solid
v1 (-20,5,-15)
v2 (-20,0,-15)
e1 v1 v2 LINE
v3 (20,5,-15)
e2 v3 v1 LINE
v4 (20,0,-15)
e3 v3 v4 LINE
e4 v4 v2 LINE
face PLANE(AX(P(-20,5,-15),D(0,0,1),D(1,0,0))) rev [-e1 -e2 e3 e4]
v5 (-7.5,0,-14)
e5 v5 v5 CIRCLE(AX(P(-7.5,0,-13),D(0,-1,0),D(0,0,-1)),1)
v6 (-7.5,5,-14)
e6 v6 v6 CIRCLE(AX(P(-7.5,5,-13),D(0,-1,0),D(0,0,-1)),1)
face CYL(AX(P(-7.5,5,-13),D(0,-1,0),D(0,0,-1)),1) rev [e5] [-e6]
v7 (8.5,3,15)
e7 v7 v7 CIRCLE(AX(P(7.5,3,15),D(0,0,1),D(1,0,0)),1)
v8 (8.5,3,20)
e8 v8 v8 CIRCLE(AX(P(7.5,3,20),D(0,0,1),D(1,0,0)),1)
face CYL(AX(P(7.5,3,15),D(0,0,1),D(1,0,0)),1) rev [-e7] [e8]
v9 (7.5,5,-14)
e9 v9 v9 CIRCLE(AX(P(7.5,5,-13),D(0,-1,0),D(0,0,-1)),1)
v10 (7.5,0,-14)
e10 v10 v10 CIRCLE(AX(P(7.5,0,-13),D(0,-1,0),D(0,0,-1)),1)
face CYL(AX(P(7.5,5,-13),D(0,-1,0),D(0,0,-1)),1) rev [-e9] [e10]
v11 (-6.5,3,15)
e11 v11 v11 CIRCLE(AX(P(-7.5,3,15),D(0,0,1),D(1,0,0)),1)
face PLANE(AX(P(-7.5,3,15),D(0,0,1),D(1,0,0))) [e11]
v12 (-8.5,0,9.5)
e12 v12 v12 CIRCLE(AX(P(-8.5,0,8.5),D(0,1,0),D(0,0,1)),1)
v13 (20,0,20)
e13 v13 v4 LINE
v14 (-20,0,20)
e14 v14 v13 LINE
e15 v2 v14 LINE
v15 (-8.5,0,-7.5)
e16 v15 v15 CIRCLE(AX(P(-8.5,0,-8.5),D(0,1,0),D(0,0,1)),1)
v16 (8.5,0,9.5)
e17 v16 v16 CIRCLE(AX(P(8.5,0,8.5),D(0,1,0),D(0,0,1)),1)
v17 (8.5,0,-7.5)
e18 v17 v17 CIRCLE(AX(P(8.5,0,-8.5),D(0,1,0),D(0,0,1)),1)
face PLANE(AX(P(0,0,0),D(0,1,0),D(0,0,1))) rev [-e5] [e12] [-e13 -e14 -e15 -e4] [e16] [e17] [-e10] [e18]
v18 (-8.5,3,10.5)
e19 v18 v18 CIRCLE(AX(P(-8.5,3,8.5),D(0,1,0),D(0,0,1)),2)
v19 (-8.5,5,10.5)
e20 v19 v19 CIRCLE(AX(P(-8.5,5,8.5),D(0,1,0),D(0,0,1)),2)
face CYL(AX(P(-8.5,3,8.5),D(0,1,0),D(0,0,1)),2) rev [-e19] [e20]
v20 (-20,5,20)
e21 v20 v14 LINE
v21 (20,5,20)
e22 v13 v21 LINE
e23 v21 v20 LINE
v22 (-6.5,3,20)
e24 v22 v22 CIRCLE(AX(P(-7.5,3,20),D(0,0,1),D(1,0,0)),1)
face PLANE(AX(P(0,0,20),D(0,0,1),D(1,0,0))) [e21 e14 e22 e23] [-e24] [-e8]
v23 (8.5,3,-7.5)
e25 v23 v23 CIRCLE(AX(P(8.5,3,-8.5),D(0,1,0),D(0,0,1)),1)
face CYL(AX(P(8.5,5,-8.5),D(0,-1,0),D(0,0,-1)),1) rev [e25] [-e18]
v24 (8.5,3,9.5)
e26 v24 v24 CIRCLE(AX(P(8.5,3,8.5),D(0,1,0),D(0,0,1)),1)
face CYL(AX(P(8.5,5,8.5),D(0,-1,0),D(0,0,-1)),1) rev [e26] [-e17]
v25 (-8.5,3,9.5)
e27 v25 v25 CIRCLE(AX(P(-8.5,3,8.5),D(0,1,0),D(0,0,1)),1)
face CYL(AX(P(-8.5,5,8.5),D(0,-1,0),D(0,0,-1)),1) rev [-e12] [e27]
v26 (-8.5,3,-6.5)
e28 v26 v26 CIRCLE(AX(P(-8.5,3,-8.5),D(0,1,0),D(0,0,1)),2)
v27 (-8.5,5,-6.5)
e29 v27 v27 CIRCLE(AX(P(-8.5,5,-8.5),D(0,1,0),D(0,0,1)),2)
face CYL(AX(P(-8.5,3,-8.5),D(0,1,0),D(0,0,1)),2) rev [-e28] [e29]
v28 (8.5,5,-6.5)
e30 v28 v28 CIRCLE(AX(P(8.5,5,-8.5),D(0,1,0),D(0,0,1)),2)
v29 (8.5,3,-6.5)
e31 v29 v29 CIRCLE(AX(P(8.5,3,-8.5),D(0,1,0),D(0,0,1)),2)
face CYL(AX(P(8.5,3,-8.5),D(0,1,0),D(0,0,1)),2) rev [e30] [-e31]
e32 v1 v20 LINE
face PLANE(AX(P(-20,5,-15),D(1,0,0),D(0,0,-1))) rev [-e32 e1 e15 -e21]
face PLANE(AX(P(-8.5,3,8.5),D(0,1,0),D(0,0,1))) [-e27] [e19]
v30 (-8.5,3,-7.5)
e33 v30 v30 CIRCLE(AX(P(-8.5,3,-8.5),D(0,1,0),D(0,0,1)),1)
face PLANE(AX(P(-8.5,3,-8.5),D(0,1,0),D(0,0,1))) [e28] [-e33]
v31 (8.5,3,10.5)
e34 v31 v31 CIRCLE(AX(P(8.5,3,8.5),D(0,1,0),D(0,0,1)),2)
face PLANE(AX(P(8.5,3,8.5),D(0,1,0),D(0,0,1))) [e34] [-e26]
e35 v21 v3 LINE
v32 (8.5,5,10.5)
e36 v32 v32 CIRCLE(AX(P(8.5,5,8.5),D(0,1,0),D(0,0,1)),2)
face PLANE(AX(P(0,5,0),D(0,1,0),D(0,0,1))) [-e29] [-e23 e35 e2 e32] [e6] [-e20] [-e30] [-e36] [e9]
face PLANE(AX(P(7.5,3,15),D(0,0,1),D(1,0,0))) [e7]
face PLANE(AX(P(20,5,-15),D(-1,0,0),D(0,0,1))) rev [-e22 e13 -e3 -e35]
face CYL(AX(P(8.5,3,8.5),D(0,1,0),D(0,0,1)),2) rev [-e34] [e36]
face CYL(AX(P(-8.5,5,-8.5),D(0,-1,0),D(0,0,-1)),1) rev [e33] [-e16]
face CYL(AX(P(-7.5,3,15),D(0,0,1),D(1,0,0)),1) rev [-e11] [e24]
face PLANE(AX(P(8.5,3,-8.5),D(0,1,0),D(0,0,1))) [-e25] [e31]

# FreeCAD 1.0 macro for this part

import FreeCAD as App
import Part
import Sketcher
Q = App.Units.Quantity


def add_polygon(sketch, points):
    """Adds a closed chain of lines whose ends are joined by coincident constraints."""
    first, n = sketch.GeometryCount, len(points)
    for a, b in zip(points, points[1:] + points[:1]):
        sketch.addGeometry(Part.LineSegment(App.Vector(*a, 0), App.Vector(*b, 0)), False)
    for i in range(n):
        sketch.addConstraint(Sketcher.Constraint("Coincident", first + i, 2, first + (i + 1) % n, 1))

doc = App.newDocument("Part")
body = doc.addObject("PartDesign::Body", "Body")

# Sketch on XZ plane
sketch1 = body.newObject("Sketcher::SketchObject", "Sketch")
sketch1.AttachmentSupport = (doc.getObject("XZ_Plane"), [""])
sketch1.MapMode = "FlatFace"
add_polygon(sketch1, [(-20, -15), (-20, 15), (20, 15), (20, -15)])  # lines 0-3
sketch1.addGeometry(Part.Circle(App.Vector(-8.5, 8.5, 0), App.Vector(0, 0, 1), 1), False)  # 4
sketch1.addGeometry(Part.Circle(App.Vector(8.5, 8.5, 0), App.Vector(0, 0, 1), 1), False)  # 5
sketch1.addGeometry(Part.Circle(App.Vector(-8.5, -8.5, 0), App.Vector(0, 0, 1), 1), False)  # 6
sketch1.addGeometry(Part.Circle(App.Vector(8.5, -8.5, 0), App.Vector(0, 0, 1), 1), False)  # 7
sketch1.addConstraint(Sketcher.Constraint("Vertical", 0))
sketch1.addConstraint(Sketcher.Constraint("Horizontal", 1))
sketch1.addConstraint(Sketcher.Constraint("Vertical", 2))
sketch1.addConstraint(Sketcher.Constraint("Horizontal", 3))
sketch1.addConstraint(Sketcher.Constraint("Equal", 4, 5))
sketch1.addConstraint(Sketcher.Constraint("Equal", 5, 6))
sketch1.addConstraint(Sketcher.Constraint("Equal", 6, 7))
sketch1.addConstraint(Sketcher.Constraint("Symmetric", 5, 3, 6, 3, -1, 1))
sketch1.addConstraint(Sketcher.Constraint("Symmetric", 4, 3, 7, 3, -1, 1))
sketch1.addConstraint(Sketcher.Constraint("Symmetric", 0, 2, 2, 2, -1, 1))
sketch1.addConstraint(Sketcher.Constraint("Symmetric", 4, 3, 5, 3, -2))
sketch1.addConstraint(Sketcher.Constraint("Diameter", 4, Q("2 mm")))
sketch1.addConstraint(Sketcher.Constraint("DistanceX", 1, 1, 1, 2, Q("40 mm")))
sketch1.addConstraint(Sketcher.Constraint("DistanceY", 0, 1, 0, 2, Q("30 mm")))
sketch1.addConstraint(Sketcher.Constraint("DistanceX", 4, 3, 5, 3, Q("17 mm")))
sketch1.addConstraint(Sketcher.Constraint("DistanceY", 6, 3, 4, 3, Q("17 mm")))
pad1 = body.newObject("PartDesign::Pad", "Pad")
pad1.Profile = sketch1
pad1.Length = 5
pad1.Reversed = True

# Sketch on XZ plane
sketch2 = body.newObject("Sketcher::SketchObject", "Sketch001")
sketch2.AttachmentSupport = (doc.getObject("XZ_Plane"), [""])
sketch2.MapMode = "FlatFace"
sketch2.AttachmentOffset = App.Placement(App.Vector(0, 0, -5), App.Rotation())
sketch2.addGeometry(Part.Circle(App.Vector(-8.5, -8.5, 0), App.Vector(0, 0, 1), 2), False)
sketch2.addGeometry(Part.Circle(App.Vector(8.5, -8.5, 0), App.Vector(0, 0, 1), 2), False)
sketch2.addGeometry(Part.Circle(App.Vector(8.5, 8.5, 0), App.Vector(0, 0, 1), 2), False)
sketch2.addGeometry(Part.Circle(App.Vector(-8.5, 8.5, 0), App.Vector(0, 0, 1), 2), False)
sketch2.addConstraint(Sketcher.Constraint("Equal", 0, 1))
sketch2.addConstraint(Sketcher.Constraint("Equal", 1, 2))
sketch2.addConstraint(Sketcher.Constraint("Equal", 2, 3))
sketch2.addConstraint(Sketcher.Constraint("Symmetric", 0, 3, 2, 3, -1, 1))
sketch2.addConstraint(Sketcher.Constraint("Symmetric", 1, 3, 3, 3, -1, 1))
sketch2.addConstraint(Sketcher.Constraint("Symmetric", 0, 3, 1, 3, -2))
sketch2.addConstraint(Sketcher.Constraint("Diameter", 0, Q("4 mm")))
sketch2.addConstraint(Sketcher.Constraint("DistanceX", 0, 3, 1, 3, Q("17 mm")))
sketch2.addConstraint(Sketcher.Constraint("DistanceY", 1, 3, 2, 3, Q("17 mm")))
pocket1 = body.newObject("PartDesign::Pocket", "Pocket")
pocket1.Profile = sketch2
pocket1.Length = 2
pocket1.Reversed = True

# Sketch on XZ plane
sketch3 = body.newObject("Sketcher::SketchObject", "Sketch002")
sketch3.AttachmentSupport = (doc.getObject("XZ_Plane"), [""])
sketch3.MapMode = "FlatFace"
sketch3.addGeometry(Part.Circle(App.Vector(-7.5, -13, 0), App.Vector(0, 0, 1), 1), False)
sketch3.addGeometry(Part.Circle(App.Vector(7.5, -13, 0), App.Vector(0, 0, 1), 1), False)
sketch3.addConstraint(Sketcher.Constraint("Equal", 0, 1))
sketch3.addConstraint(Sketcher.Constraint("Symmetric", 0, 3, 1, 3, -2))
sketch3.addConstraint(Sketcher.Constraint("Diameter", 0, Q("2 mm")))
sketch3.addConstraint(Sketcher.Constraint("DistanceY", 0, 3, -1, 1, Q("13 mm")))
sketch3.addConstraint(Sketcher.Constraint("DistanceX", 0, 3, 1, 3, Q("15 mm")))
pocket2 = body.newObject("PartDesign::Pocket", "Pocket001")
pocket2.Profile = sketch3
pocket2.Type = "ThroughAll"

# Sketch on XY plane
sketch4 = body.newObject("Sketcher::SketchObject", "Sketch003")
sketch4.AttachmentSupport = (doc.getObject("XY_Plane"), [""])
sketch4.MapMode = "FlatFace"
sketch4.AttachmentOffset = App.Placement(App.Vector(0, 0, 15), App.Rotation())
add_polygon(sketch4, [(-20, 5), (-20, 0), (20, 0), (20, 5)])  # lines 0-3
sketch4.addConstraint(Sketcher.Constraint("Vertical", 0))
sketch4.addConstraint(Sketcher.Constraint("Horizontal", 1))
sketch4.addConstraint(Sketcher.Constraint("Vertical", 2))
sketch4.addConstraint(Sketcher.Constraint("Horizontal", 3))
sketch4.addConstraint(Sketcher.Constraint("Symmetric", 0, 2, 1, 2, -1, 1))
sketch4.addConstraint(Sketcher.Constraint("DistanceX", 1, 1, 1, 2, Q("40 mm")))
sketch4.addConstraint(Sketcher.Constraint("DistanceY", 0, 2, 0, 1, Q("5 mm")))
pad2 = body.newObject("PartDesign::Pad", "Pad001")
pad2.Profile = sketch4
pad2.Length = 5

# Sketch on XY plane
sketch5 = body.newObject("Sketcher::SketchObject", "Sketch004")
sketch5.AttachmentSupport = (doc.getObject("XY_Plane"), [""])
sketch5.MapMode = "FlatFace"
sketch5.AttachmentOffset = App.Placement(App.Vector(0, 0, 20), App.Rotation())
sketch5.addGeometry(Part.Circle(App.Vector(-7.5, 3, 0), App.Vector(0, 0, 1), 1), False)
sketch5.addGeometry(Part.Circle(App.Vector(7.5, 3, 0), App.Vector(0, 0, 1), 1), False)
sketch5.addConstraint(Sketcher.Constraint("Equal", 0, 1))
sketch5.addConstraint(Sketcher.Constraint("Symmetric", 0, 3, 1, 3, -2))
sketch5.addConstraint(Sketcher.Constraint("Diameter", 0, Q("2 mm")))
sketch5.addConstraint(Sketcher.Constraint("DistanceY", -1, 1, 0, 3, Q("3 mm")))
sketch5.addConstraint(Sketcher.Constraint("DistanceX", 0, 3, 1, 3, Q("15 mm")))
pocket3 = body.newObject("PartDesign::Pocket", "Pocket002")
pocket3.Profile = sketch5
pocket3.Length = 5

doc.recompute()
